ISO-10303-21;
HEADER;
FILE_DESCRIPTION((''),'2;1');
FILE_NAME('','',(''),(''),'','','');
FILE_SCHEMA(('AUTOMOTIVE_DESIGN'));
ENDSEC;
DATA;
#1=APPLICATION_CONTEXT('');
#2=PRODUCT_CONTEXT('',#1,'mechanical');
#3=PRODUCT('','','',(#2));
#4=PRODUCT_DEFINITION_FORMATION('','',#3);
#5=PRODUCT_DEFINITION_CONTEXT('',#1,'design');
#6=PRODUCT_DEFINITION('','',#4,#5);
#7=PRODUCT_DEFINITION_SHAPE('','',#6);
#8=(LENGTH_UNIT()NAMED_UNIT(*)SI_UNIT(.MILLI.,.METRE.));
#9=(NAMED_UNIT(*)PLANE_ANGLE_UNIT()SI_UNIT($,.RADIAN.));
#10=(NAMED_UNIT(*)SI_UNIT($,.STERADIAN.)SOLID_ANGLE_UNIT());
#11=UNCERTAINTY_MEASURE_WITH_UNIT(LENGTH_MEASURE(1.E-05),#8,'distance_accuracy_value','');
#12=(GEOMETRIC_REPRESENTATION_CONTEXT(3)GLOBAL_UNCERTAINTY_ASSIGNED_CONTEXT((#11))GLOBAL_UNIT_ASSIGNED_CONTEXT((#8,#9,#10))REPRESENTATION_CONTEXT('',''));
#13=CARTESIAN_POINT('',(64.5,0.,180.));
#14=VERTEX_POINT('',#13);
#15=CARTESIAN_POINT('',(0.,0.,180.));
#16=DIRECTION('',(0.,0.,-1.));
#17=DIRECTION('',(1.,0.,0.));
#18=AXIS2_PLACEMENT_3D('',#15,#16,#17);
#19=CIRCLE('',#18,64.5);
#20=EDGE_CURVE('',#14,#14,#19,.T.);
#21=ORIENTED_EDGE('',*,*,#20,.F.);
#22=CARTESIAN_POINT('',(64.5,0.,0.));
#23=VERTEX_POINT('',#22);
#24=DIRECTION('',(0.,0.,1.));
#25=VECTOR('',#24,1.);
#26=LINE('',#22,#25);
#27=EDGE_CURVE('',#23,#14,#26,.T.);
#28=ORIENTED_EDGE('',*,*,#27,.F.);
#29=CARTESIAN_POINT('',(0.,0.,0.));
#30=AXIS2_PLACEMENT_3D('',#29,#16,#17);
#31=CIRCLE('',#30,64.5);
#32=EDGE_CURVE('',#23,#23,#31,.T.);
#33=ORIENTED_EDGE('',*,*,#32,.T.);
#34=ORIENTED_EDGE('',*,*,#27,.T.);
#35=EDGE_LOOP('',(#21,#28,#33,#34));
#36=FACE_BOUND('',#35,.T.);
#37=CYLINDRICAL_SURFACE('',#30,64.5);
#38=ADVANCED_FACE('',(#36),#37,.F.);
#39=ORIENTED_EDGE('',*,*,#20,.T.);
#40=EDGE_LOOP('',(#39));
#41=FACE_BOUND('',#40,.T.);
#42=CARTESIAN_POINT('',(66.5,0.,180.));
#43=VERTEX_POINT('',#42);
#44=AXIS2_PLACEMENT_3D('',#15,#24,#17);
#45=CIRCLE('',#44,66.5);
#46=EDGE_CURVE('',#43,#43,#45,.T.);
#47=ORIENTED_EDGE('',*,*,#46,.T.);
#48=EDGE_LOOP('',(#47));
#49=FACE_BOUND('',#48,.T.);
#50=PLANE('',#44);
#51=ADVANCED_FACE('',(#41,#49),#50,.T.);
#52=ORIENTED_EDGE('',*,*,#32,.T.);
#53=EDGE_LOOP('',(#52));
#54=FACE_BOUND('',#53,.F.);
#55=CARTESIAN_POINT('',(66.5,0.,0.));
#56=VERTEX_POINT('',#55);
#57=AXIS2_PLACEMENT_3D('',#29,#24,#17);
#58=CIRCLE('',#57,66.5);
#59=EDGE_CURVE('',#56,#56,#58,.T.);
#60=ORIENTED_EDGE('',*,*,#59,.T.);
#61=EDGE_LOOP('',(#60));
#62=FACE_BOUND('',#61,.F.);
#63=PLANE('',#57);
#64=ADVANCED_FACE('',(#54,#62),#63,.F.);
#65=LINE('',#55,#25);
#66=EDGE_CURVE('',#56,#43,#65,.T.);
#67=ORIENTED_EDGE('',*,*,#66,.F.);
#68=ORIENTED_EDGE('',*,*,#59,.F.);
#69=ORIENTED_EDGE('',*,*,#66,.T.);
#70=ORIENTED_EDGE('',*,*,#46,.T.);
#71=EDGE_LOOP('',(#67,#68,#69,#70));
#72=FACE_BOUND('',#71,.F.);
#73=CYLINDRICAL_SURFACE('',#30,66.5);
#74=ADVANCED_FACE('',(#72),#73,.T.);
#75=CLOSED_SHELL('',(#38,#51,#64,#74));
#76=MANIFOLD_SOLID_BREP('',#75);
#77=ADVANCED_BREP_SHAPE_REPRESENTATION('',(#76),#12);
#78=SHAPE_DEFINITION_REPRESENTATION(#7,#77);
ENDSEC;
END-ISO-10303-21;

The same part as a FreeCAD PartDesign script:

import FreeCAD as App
import Part
import Sketcher


def faces_at(feature, points):
    """Names of the faces that lie closest to the given points."""
    faces = feature.Shape.Faces
    near = lambda p: min(range(len(faces)), key=lambda i: faces[i].distToShape(Part.Vertex(*p))[0])
    return sorted({f"Face{near(p) + 1}" for p in points})

doc = App.newDocument("Part")
params = doc.addObject("Spreadsheet::Sheet", "Params")
for row, (alias, value) in enumerate([
    ("sketch1_diameter", "133 mm"),
    ("pad1_length", "180 mm"),
    ("thickness_wall", "2 mm"),
], start=1):
    params.set(f"A{row}", alias)
    params.set(f"B{row}", "=" + value)
    params.setAlias(f"B{row}", alias)

body = doc.addObject("PartDesign::Body", "Body")

# Sketch on XY plane
sketch1 = doc.addObject("Sketcher::SketchObject", "Sketch")
body.addObject(sketch1)
sketch1.AttachmentSupport = (doc.XY_Plane, [""])
sketch1.MapMode = "FlatFace"
sketch1.addGeometry(Part.Circle(App.Vector(0, 0, 0), App.Vector(0, 0, 1), 66.5), False)
sketch1.addConstraint([
    Sketcher.Constraint("Coincident", 0, 3, -1, 1),
    Sketcher.Constraint("Diameter", 0, 133.0),
])
sketch1.setExpression("Constraints[1]", "Params.sketch1_diameter")
pad1 = doc.addObject("PartDesign::Pad", "Pad")
body.addObject(pad1)
pad1.Profile = sketch1
pad1.setExpression("Length", "Params.pad1_length")
doc.recompute()

thickness = doc.addObject("PartDesign::Thickness", "Thickness")
body.addObject(thickness)
thickness.Base = (pad1, faces_at(pad1, [(16.526, 16.64, 0), (16.526, 16.64, 180)]))
thickness.setExpression("Value", "Params.thickness_wall")
thickness.Reversed = True
thickness.Join = "Intersection"

doc.recompute()
